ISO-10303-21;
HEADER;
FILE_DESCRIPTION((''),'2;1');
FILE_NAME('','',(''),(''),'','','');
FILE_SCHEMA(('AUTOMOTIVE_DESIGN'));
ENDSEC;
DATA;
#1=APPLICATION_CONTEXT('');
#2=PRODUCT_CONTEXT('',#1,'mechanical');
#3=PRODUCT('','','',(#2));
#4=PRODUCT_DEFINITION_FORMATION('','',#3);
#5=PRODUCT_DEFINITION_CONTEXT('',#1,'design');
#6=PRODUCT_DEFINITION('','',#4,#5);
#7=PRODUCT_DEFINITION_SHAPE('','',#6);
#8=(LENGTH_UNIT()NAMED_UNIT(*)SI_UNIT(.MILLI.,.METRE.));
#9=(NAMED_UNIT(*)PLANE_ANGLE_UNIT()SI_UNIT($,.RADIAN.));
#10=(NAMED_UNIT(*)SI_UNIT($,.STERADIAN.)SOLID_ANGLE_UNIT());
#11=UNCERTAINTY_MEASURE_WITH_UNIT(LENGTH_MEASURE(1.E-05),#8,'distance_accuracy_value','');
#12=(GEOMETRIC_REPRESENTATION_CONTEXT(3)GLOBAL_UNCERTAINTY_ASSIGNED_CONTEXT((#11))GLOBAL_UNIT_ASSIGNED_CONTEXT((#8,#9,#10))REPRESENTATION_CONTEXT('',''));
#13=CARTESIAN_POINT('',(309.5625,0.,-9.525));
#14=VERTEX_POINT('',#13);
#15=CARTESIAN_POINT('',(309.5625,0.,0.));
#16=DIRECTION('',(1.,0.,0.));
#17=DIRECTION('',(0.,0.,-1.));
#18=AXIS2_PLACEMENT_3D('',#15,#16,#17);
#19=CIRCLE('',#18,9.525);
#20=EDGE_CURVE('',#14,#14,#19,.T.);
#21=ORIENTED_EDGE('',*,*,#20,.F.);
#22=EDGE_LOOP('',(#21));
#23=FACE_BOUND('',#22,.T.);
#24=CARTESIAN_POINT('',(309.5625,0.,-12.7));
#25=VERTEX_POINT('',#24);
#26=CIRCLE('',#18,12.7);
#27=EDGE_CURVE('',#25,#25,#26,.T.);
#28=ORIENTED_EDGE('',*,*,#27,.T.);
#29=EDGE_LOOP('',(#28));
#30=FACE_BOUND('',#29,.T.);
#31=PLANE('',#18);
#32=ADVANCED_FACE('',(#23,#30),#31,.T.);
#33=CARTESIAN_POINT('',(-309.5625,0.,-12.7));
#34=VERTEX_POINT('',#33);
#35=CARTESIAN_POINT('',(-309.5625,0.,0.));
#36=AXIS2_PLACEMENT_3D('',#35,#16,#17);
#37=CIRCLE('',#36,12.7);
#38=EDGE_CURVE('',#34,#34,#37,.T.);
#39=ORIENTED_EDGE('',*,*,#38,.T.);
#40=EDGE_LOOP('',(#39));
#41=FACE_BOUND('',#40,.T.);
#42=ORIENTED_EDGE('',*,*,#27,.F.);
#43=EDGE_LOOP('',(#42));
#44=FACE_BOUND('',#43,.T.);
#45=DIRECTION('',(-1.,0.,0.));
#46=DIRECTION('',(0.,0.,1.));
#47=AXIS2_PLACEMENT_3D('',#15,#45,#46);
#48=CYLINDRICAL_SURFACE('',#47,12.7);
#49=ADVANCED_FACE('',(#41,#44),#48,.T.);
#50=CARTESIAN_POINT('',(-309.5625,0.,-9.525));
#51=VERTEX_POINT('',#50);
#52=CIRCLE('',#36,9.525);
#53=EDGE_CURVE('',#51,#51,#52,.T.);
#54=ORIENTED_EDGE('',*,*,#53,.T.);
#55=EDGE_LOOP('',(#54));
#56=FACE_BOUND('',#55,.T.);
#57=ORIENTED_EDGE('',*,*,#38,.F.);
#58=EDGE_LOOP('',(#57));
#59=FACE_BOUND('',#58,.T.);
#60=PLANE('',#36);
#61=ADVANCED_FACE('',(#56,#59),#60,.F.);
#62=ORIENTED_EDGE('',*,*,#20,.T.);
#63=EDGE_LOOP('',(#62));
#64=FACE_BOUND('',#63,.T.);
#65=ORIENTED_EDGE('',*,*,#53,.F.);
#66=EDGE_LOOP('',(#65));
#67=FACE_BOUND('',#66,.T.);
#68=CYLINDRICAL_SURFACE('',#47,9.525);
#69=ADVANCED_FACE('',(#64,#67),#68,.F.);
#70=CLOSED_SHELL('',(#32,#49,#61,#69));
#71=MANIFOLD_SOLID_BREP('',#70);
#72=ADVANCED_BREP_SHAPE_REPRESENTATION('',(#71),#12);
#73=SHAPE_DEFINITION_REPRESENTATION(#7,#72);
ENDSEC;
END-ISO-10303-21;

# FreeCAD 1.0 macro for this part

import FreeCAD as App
import Part
import Sketcher

V = App.Vector
Q = App.Units.Quantity

doc = App.newDocument("Part")
body = doc.addObject("PartDesign::Body", "Body")

# Sketch on YZ plane
sketch1 = body.newObject("Sketcher::SketchObject", "Sketch")
sketch1.AttachmentSupport = (doc.getObject("YZ_Plane"), [""])
sketch1.MapMode = "FlatFace"
sketch1.addGeometry([
    Part.Circle(V(0, 0, 0), V(0, 0, 1), 12.7),
    Part.Circle(V(0, 0, 0), V(0, 0, 1), 9.525),
], False)
sketch1.addConstraint([
    Sketcher.Constraint("Coincident", 0, 3, -1, 1),
    Sketcher.Constraint("Coincident", 1, 3, -1, 1),
    Sketcher.Constraint("Diameter", 0, Q("1 in")),
    Sketcher.Constraint("Diameter", 1, Q("0.75 in")),
])
pad1 = body.newObject("PartDesign::Pad", "Pad")
pad1.Profile = sketch1
pad1.Length = Q("24.375 in")
pad1.Midplane = True

doc.recompute()
